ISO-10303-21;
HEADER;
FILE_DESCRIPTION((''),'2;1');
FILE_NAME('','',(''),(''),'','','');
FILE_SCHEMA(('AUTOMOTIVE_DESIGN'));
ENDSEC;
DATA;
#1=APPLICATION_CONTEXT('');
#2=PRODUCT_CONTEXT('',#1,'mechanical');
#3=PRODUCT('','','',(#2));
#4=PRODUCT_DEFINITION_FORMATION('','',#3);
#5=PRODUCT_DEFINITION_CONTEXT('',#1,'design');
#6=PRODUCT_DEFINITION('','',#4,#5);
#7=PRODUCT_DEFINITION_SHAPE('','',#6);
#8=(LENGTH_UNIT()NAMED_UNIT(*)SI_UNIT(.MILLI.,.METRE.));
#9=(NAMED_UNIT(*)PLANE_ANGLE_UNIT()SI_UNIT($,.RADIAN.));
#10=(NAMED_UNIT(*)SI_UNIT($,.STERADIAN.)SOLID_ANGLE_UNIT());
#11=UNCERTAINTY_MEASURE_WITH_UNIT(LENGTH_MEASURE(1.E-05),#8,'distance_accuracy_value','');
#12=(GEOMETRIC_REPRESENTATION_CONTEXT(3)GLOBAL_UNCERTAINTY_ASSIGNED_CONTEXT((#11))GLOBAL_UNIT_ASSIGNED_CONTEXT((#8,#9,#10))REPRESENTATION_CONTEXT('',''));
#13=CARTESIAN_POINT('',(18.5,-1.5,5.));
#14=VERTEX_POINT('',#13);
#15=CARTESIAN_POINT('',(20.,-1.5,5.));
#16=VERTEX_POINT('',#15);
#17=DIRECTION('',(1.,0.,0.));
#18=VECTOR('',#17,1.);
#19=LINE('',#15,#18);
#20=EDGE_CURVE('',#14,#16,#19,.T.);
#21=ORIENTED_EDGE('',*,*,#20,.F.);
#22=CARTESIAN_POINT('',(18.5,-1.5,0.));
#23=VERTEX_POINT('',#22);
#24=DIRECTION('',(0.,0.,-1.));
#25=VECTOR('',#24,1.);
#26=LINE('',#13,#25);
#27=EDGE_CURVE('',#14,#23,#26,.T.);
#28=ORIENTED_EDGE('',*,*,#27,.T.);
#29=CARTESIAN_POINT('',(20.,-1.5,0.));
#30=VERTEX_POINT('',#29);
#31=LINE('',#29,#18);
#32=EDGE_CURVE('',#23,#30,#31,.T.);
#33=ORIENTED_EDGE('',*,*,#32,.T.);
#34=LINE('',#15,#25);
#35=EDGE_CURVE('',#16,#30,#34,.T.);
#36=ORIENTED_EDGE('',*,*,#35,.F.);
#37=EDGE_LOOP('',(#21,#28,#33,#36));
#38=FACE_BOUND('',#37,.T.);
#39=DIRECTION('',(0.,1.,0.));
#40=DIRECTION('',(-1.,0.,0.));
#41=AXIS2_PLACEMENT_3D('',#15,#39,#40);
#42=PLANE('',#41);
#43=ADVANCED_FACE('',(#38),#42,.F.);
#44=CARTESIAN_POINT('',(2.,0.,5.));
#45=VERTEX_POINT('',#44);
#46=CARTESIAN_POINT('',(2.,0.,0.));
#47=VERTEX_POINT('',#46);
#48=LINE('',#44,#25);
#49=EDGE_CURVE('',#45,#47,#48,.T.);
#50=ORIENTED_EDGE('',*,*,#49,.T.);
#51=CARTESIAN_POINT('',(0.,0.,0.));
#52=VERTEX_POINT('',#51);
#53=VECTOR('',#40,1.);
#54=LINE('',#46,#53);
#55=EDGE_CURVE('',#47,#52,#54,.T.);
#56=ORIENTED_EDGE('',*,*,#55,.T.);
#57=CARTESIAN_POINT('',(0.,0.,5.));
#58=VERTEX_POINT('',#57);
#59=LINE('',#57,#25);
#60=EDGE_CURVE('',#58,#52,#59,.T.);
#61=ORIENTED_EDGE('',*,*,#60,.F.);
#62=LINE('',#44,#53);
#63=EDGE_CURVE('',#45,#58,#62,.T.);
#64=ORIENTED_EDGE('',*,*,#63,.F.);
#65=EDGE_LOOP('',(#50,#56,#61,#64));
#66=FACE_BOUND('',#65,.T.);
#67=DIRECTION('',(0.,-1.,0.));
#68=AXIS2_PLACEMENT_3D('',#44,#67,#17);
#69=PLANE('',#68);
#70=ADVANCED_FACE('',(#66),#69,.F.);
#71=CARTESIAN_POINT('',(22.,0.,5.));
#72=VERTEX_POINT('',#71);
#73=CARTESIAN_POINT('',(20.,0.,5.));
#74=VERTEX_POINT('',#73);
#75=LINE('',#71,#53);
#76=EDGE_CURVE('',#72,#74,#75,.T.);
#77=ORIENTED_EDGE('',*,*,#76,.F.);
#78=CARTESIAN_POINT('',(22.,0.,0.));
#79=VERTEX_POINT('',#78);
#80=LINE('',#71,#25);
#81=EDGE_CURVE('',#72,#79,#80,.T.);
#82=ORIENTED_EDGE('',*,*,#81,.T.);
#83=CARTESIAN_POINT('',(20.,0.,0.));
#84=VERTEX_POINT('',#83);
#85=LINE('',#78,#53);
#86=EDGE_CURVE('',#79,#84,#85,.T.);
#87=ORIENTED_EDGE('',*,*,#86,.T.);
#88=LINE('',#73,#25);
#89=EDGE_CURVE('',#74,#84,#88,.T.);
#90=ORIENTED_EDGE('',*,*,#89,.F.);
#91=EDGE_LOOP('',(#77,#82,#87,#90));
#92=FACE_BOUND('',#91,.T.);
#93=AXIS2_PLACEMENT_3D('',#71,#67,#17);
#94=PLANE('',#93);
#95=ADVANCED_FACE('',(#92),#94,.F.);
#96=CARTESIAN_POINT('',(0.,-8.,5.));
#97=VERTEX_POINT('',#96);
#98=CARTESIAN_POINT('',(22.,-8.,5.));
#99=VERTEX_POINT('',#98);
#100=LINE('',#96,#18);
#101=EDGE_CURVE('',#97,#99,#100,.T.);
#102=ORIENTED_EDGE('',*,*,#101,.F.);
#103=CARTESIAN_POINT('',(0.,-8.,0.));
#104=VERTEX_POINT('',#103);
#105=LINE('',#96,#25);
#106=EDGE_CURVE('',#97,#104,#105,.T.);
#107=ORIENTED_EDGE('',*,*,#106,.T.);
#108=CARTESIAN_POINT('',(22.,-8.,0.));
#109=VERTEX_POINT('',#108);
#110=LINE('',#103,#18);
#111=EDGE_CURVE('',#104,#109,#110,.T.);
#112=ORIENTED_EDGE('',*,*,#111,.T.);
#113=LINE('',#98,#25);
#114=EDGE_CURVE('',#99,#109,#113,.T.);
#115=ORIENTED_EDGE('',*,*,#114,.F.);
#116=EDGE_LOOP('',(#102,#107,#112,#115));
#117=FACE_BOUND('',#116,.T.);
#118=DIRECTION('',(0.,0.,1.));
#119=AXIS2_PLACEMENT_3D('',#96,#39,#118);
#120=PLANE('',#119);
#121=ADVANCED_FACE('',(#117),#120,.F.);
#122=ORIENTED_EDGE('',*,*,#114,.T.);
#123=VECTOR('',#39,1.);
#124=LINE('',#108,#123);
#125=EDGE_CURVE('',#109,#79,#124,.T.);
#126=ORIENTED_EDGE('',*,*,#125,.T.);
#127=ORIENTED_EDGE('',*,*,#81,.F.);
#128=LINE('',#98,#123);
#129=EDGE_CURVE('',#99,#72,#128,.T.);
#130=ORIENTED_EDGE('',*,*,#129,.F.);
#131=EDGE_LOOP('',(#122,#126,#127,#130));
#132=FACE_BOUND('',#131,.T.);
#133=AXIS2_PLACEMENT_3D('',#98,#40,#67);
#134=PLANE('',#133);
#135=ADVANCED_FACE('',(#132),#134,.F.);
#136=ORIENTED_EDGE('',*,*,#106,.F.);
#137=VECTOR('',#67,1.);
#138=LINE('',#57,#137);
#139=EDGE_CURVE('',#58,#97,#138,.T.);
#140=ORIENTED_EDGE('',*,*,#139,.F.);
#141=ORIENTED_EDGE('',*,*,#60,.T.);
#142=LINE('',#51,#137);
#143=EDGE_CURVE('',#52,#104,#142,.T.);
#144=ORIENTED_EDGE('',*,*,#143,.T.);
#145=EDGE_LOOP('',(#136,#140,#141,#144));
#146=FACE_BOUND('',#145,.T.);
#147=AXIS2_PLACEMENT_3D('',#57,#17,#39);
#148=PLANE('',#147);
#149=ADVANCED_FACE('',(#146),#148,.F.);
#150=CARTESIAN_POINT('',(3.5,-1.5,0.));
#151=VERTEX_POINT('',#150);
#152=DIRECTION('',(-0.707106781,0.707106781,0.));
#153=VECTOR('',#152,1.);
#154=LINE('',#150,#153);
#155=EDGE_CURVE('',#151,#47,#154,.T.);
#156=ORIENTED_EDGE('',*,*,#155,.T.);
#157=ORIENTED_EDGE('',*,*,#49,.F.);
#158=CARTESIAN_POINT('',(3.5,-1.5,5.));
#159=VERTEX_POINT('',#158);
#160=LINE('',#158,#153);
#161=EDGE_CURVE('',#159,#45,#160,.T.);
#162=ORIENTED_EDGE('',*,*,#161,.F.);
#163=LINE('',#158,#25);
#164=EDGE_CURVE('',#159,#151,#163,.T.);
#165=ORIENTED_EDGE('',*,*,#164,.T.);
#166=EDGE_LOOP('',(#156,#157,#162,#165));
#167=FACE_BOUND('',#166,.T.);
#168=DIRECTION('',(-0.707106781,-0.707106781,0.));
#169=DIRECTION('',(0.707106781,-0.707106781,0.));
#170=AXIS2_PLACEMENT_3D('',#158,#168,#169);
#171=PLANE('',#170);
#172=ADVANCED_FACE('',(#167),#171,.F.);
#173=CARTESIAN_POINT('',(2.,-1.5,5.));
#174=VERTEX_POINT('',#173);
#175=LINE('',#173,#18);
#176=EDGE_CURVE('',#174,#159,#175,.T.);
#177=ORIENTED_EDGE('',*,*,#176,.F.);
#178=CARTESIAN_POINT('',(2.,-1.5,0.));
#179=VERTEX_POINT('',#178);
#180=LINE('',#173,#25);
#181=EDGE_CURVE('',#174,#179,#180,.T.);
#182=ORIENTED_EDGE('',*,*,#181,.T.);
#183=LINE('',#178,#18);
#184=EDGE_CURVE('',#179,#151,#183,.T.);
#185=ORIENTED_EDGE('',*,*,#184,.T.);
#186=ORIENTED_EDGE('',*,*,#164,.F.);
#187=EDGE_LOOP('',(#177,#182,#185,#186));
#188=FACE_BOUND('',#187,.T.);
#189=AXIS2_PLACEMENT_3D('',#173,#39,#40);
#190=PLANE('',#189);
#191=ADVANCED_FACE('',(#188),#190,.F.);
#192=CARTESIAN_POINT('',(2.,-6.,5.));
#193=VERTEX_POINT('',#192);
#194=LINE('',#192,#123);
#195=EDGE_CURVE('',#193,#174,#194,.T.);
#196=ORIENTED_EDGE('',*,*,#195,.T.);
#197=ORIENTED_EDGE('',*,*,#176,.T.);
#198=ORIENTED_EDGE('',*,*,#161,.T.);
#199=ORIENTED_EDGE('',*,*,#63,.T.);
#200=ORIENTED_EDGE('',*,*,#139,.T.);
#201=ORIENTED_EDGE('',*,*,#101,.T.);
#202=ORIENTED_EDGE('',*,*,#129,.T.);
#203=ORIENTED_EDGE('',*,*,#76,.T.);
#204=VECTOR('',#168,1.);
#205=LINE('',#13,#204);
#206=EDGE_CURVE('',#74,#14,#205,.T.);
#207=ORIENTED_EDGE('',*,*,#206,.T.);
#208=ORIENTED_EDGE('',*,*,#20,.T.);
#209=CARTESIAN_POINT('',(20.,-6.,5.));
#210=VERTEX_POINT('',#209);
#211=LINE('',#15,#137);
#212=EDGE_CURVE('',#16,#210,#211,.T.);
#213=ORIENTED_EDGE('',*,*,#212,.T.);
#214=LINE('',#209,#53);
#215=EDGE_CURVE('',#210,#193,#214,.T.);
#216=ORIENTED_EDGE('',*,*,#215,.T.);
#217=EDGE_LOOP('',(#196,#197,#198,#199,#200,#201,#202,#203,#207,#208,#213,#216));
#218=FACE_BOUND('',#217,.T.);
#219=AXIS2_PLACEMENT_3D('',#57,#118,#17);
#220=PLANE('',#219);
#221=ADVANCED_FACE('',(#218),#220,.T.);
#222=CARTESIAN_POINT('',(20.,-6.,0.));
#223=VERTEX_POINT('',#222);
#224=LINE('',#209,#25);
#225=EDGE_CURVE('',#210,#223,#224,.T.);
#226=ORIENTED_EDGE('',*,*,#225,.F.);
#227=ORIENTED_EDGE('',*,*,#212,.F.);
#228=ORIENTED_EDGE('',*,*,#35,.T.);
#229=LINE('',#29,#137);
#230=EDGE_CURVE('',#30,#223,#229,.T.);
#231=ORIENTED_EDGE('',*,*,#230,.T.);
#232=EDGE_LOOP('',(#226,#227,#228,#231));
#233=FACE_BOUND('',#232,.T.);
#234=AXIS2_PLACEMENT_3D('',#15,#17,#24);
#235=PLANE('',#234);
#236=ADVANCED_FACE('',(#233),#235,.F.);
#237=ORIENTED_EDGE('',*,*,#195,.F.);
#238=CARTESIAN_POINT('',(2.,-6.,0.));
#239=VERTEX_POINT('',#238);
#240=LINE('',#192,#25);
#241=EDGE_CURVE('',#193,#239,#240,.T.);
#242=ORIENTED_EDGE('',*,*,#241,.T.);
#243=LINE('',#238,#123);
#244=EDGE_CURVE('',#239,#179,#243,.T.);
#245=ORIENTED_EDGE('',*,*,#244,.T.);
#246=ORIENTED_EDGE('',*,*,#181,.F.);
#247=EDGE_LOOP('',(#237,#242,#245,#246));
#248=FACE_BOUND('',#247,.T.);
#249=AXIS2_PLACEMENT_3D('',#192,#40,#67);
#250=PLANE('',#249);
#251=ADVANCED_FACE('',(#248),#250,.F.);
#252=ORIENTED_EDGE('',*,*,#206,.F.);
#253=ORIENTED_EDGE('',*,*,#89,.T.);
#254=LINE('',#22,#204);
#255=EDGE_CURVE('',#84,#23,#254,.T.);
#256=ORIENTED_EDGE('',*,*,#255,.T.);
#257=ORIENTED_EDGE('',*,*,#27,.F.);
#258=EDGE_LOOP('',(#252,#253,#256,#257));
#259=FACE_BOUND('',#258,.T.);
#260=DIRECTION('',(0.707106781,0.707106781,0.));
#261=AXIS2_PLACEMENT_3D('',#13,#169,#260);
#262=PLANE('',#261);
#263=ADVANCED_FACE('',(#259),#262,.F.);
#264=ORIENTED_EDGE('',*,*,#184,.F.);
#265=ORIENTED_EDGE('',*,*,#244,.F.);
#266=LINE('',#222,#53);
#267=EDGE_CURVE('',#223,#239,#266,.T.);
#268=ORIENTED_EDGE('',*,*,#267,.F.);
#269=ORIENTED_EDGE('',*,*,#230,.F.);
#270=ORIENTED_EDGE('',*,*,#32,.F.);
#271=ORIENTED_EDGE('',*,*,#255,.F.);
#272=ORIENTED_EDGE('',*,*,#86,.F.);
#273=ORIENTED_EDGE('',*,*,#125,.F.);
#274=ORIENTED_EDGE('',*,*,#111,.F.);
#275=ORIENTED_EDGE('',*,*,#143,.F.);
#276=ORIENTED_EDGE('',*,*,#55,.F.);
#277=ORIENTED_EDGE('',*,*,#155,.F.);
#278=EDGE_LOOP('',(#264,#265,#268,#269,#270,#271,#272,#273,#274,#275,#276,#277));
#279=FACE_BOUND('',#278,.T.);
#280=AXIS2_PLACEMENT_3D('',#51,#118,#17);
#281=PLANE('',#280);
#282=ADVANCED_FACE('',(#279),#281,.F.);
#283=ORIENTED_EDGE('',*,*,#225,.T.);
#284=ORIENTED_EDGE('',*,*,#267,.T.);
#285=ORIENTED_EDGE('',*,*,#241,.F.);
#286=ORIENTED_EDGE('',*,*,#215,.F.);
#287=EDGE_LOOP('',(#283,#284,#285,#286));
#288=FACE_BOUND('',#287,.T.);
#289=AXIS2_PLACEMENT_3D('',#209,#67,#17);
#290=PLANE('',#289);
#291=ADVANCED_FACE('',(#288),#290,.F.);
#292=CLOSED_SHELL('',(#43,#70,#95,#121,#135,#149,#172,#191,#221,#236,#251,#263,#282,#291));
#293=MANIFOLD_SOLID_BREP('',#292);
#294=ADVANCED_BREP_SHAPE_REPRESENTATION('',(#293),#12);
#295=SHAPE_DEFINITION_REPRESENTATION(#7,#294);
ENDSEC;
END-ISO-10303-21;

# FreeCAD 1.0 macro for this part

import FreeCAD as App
import Part
import Sketcher
from FreeCAD import Vector


def add_polygon(sketch, points):
    """Adds a closed chain of lines whose ends are joined by coincident constraints."""
    first, n = sketch.GeometryCount, len(points)
    for a, b in zip(points, points[1:] + points[:1]):
        sketch.addGeometry(Part.LineSegment(App.Vector(*a, 0), App.Vector(*b, 0)), False)
    for i in range(n):
        sketch.addConstraint(Sketcher.Constraint("Coincident", first + i, 2, first + (i + 1) % n, 1))

doc = App.newDocument("Part")
params = doc.addObject("Spreadsheet::Sheet", "Params")
for row, (alias, value) in enumerate([
    ("sketch1_width", "22 mm"),
    ("sketch1_width2", "2 mm"),
    ("sketch1_height", "8 mm"),
    ("sketch1_width3", "1.5 mm"),
    ("sketch1_height2", "4.5 mm"),
    ("pad1_length", "5 mm"),
], start=1):
    params.set(f"A{row}", alias)
    params.set(f"B{row}", "=" + value)
    params.setAlias(f"B{row}", alias)

body = doc.addObject("PartDesign::Body", "Body")

sketch1 = body.newObject("Sketcher::SketchObject", "Sketch")
sketch1.AttachmentSupport = (doc.getObject("XY_Plane"), [""])
sketch1.MapMode = "FlatFace"
add_polygon(sketch1, [(0, 0), (0, -8), (22, -8), (22, 0), (20, 0), (18.5, -1.5), (20, -1.5), (20, -6), (2, -6), (2, -1.5), (3.5, -1.5), (2, 0)])
sketch1.addConstraint([
    Sketcher.Constraint("Vertical", 0),
    Sketcher.Constraint("Horizontal", 1),
    Sketcher.Constraint("Vertical", 2),
    Sketcher.Constraint("Horizontal", 3),
    Sketcher.Constraint("Horizontal", 5),
    Sketcher.Constraint("Vertical", 6),
    Sketcher.Constraint("Horizontal", 7),
    Sketcher.Constraint("Vertical", 8),
    Sketcher.Constraint("Horizontal", 9),
    Sketcher.Constraint("Horizontal", 11),
    Sketcher.Constraint("Coincident", 11, 2, -1, 1),
    Sketcher.Constraint("PointOnObject", 2, 2, -1),
    Sketcher.Constraint("Perpendicular", 4, 10),
    Sketcher.Constraint("Horizontal", 5, 2, 8, 2),
    Sketcher.Constraint("Vertical", 3, 2, 5, 2),
    Sketcher.Constraint("Vertical", 8, 2, 10, 2),
    Sketcher.Constraint("Equal", 5, 9),
    Sketcher.Constraint("Equal", 3, 11),
    Sketcher.Constraint("DistanceX", 1, 1, 1, 2, 22.0),
    Sketcher.Constraint("DistanceX", 3, 2, 3, 1, 2.0),
    Sketcher.Constraint("DistanceY", 0, 2, 0, 1, 8.0),
    Sketcher.Constraint("DistanceX", 5, 1, 5, 2, 1.5),
    Sketcher.Constraint("DistanceY", 6, 2, 6, 1, 4.5),
])
sketch1.setExpression("Constraints[30]", "Params.sketch1_width")
sketch1.setExpression("Constraints[31]", "Params.sketch1_width2")
sketch1.setExpression("Constraints[32]", "Params.sketch1_height")
sketch1.setExpression("Constraints[33]", "Params.sketch1_width3")
sketch1.setExpression("Constraints[34]", "Params.sketch1_height2")
pad1 = body.newObject("PartDesign::Pad", "Pad")
pad1.Profile = sketch1
pad1.setExpression("Length", "Params.pad1_length")

doc.recompute()
